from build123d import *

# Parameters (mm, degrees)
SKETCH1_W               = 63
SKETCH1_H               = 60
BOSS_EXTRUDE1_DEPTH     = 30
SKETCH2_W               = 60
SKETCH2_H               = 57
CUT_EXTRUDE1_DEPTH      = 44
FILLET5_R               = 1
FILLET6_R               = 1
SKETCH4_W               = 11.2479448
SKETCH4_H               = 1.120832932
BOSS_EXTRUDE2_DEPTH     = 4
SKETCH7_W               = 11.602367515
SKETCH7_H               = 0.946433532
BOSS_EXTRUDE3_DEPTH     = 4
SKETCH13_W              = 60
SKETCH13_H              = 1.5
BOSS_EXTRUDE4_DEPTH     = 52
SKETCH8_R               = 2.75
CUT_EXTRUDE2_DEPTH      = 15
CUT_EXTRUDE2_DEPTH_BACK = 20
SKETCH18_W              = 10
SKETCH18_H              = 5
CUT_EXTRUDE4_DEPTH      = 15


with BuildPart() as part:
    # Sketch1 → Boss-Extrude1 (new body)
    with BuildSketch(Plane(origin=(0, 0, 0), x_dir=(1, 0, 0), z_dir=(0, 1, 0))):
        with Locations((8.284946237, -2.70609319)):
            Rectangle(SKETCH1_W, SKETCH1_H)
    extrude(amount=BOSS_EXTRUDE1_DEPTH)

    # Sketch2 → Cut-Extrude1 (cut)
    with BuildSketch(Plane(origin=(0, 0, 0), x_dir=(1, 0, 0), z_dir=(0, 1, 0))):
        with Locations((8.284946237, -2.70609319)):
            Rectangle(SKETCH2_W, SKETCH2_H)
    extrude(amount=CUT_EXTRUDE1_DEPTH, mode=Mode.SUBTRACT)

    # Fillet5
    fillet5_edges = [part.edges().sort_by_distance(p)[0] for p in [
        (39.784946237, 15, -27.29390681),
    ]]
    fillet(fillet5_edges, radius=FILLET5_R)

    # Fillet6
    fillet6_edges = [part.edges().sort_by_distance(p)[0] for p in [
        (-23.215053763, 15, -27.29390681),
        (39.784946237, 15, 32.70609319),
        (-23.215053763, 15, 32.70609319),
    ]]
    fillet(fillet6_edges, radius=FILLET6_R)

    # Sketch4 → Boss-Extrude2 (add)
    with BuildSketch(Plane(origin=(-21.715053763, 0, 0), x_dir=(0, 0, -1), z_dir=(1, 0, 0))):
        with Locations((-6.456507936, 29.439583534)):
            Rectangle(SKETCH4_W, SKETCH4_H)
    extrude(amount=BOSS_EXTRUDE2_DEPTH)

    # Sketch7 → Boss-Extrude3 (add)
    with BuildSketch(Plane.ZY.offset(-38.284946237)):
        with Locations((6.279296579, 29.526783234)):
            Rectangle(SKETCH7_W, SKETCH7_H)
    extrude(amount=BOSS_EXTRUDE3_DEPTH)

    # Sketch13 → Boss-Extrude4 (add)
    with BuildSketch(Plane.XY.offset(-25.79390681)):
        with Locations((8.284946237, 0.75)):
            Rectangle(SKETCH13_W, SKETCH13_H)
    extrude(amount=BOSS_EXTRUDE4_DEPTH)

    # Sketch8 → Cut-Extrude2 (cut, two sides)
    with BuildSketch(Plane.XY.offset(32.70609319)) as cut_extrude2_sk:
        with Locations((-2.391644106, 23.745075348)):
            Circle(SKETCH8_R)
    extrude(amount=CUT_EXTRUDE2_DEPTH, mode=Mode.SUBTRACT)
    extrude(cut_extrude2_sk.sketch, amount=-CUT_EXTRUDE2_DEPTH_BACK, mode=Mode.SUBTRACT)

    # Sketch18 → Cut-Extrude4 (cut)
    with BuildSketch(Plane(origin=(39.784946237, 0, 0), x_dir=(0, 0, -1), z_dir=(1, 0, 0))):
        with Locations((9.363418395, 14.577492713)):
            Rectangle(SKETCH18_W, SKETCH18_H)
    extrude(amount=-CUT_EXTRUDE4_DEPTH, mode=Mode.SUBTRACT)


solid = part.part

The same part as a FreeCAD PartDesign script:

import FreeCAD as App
import Part
import Sketcher
from FreeCAD import Vector
Q = App.Units.Quantity


def edges_at(feature, points):
    """Names of the edges that pass closest to the given points."""
    edges = feature.Shape.Edges
    near = lambda p: min(range(len(edges)), key=lambda i: edges[i].distToShape(Part.Vertex(*p))[0])
    return sorted({f"Edge{near(p) + 1}" for p in points})

doc = App.newDocument("Part")
body = doc.addObject("PartDesign::Body", "Body")

# Sketch on XZ plane
sketch1 = body.newObject("Sketcher::SketchObject", "Sketch")
sketch1.AttachmentSupport = (doc.getObject("XZ_Plane"), [""])
sketch1.MapMode = "FlatFace"
sketch1.addGeometry(Part.LineSegment(Vector(-23, -27, 0), Vector(-23, 33, 0)), False)
sketch1.addGeometry(Part.LineSegment(Vector(-23, 33, 0), Vector(40, 33, 0)), False)
sketch1.addGeometry(Part.LineSegment(Vector(40, 33, 0), Vector(40, -27, 0)), False)
sketch1.addGeometry(Part.LineSegment(Vector(40, -27, 0), Vector(-23, -27, 0)), False)
sketch1.addConstraint(Sketcher.Constraint("Coincident", 0, 2, 1, 1))
sketch1.addConstraint(Sketcher.Constraint("Coincident", 1, 2, 2, 1))
sketch1.addConstraint(Sketcher.Constraint("Coincident", 2, 2, 3, 1))
sketch1.addConstraint(Sketcher.Constraint("Coincident", 3, 2, 0, 1))
sketch1.addConstraint(Sketcher.Constraint("Vertical", 0))
sketch1.addConstraint(Sketcher.Constraint("Horizontal", 1))
sketch1.addConstraint(Sketcher.Constraint("Vertical", 2))
sketch1.addConstraint(Sketcher.Constraint("Horizontal", 3))
sketch1.addConstraint(Sketcher.Constraint("DistanceX", 1, 1, 1, 2, Q("63 mm")))
sketch1.addConstraint(Sketcher.Constraint("DistanceY", 0, 1, 0, 2, Q("60 mm")))
sketch1.addConstraint(Sketcher.Constraint("DistanceX", 0, 2, -1, 1, Q("23.215054 mm")))
sketch1.addConstraint(Sketcher.Constraint("DistanceY", -1, 1, 0, 2, Q("32.706093 mm")))
pad1 = body.newObject("PartDesign::Pad", "Pad")
pad1.Profile = sketch1
pad1.Length = 30
pad1.Reversed = True

# Sketch on XZ plane
sketch2 = body.newObject("Sketcher::SketchObject", "Sketch001")
sketch2.AttachmentSupport = (doc.getObject("XZ_Plane"), [""])
sketch2.MapMode = "FlatFace"
sketch2.addGeometry(Part.LineSegment(Vector(-22, -26, 0), Vector(-22, 31, 0)), False)
sketch2.addGeometry(Part.LineSegment(Vector(-22, 31, 0), Vector(38, 31, 0)), False)
sketch2.addGeometry(Part.LineSegment(Vector(38, 31, 0), Vector(38, -26, 0)), False)
sketch2.addGeometry(Part.LineSegment(Vector(38, -26, 0), Vector(-22, -26, 0)), False)
sketch2.addConstraint(Sketcher.Constraint("Coincident", 0, 2, 1, 1))
sketch2.addConstraint(Sketcher.Constraint("Coincident", 1, 2, 2, 1))
sketch2.addConstraint(Sketcher.Constraint("Coincident", 2, 2, 3, 1))
sketch2.addConstraint(Sketcher.Constraint("Coincident", 3, 2, 0, 1))
sketch2.addConstraint(Sketcher.Constraint("Vertical", 0))
sketch2.addConstraint(Sketcher.Constraint("Horizontal", 1))
sketch2.addConstraint(Sketcher.Constraint("Vertical", 2))
sketch2.addConstraint(Sketcher.Constraint("Horizontal", 3))
sketch2.addConstraint(Sketcher.Constraint("DistanceX", 1, 1, 1, 2, Q("60 mm")))
sketch2.addConstraint(Sketcher.Constraint("DistanceY", 0, 1, 0, 2, Q("57 mm")))
sketch2.addConstraint(Sketcher.Constraint("DistanceX", 0, 2, -1, 1, Q("21.715054 mm")))
sketch2.addConstraint(Sketcher.Constraint("DistanceY", -1, 1, 0, 2, Q("31.206093 mm")))
pocket1 = body.newObject("PartDesign::Pocket", "Pocket")
pocket1.Profile = sketch2
pocket1.Length = 44
doc.recompute()

fillet = body.newObject("PartDesign::Fillet", "Fillet")
fillet.Base = (pocket1, edges_at(pocket1, [(39.785, 15, -27.294)]))
fillet.Radius = 1
doc.recompute()

fillet2 = body.newObject("PartDesign::Fillet", "Fillet001")
fillet2.Base = (fillet, edges_at(fillet, [(-23.215, 15, -27.294), (39.785, 15, 32.706), (-23.215, 15, 32.706)]))
fillet2.Radius = 1

# Sketch on YZ plane
sketch3 = body.newObject("Sketcher::SketchObject", "Sketch002")
sketch3.AttachmentSupport = (doc.getObject("YZ_Plane"), [""])
sketch3.MapMode = "FlatFace"
sketch3.AttachmentOffset = App.Placement(Vector(0, 0, -21.715054), App.Rotation())
sketch3.addGeometry(Part.LineSegment(Vector(30, 12.1, 0), Vector(28.9, 12.1, 0)), False)
sketch3.addGeometry(Part.LineSegment(Vector(28.9, 12.1, 0), Vector(28.9, 0.8, 0)), False)
sketch3.addGeometry(Part.LineSegment(Vector(28.9, 0.8, 0), Vector(30, 0.8, 0)), False)
sketch3.addGeometry(Part.LineSegment(Vector(30, 0.8, 0), Vector(30, 12.1, 0)), False)
sketch3.addConstraint(Sketcher.Constraint("Coincident", 0, 2, 1, 1))
sketch3.addConstraint(Sketcher.Constraint("Coincident", 1, 2, 2, 1))
sketch3.addConstraint(Sketcher.Constraint("Coincident", 2, 2, 3, 1))
sketch3.addConstraint(Sketcher.Constraint("Coincident", 3, 2, 0, 1))
sketch3.addConstraint(Sketcher.Constraint("Horizontal", 0))
sketch3.addConstraint(Sketcher.Constraint("Vertical", 1))
sketch3.addConstraint(Sketcher.Constraint("Horizontal", 2))
sketch3.addConstraint(Sketcher.Constraint("Vertical", 3))
sketch3.addConstraint(Sketcher.Constraint("DistanceX", -1, 1, 2, 2, Q("30 mm")))
sketch3.addConstraint(Sketcher.Constraint("DistanceX", 0, 2, 0, 1, Q("1.120833 mm")))
sketch3.addConstraint(Sketcher.Constraint("DistanceY", 1, 2, 1, 1, Q("11.247945 mm")))
sketch3.addConstraint(Sketcher.Constraint("DistanceY", -1, 1, 0, 2, Q("12.08048 mm")))
pad2 = body.newObject("PartDesign::Pad", "Pad001")
pad2.Profile = sketch3
pad2.Length = 4

# Sketch on YZ plane
sketch4 = body.newObject("Sketcher::SketchObject", "Sketch003")
sketch4.AttachmentSupport = (doc.getObject("YZ_Plane"), [""])
sketch4.MapMode = "FlatFace"
sketch4.AttachmentOffset = App.Placement(Vector(0, 0, 38.284946), App.Rotation())
sketch4.addGeometry(Part.LineSegment(Vector(30, 0.5, 0), Vector(29.1, 0.5, 0)), False)
sketch4.addGeometry(Part.LineSegment(Vector(29.1, 0.5, 0), Vector(29.1, 12.1, 0)), False)
sketch4.addGeometry(Part.LineSegment(Vector(29.1, 12.1, 0), Vector(30, 12.1, 0)), False)
sketch4.addGeometry(Part.LineSegment(Vector(30, 12.1, 0), Vector(30, 0.5, 0)), False)
sketch4.addConstraint(Sketcher.Constraint("Coincident", 0, 2, 1, 1))
sketch4.addConstraint(Sketcher.Constraint("Coincident", 1, 2, 2, 1))
sketch4.addConstraint(Sketcher.Constraint("Coincident", 2, 2, 3, 1))
sketch4.addConstraint(Sketcher.Constraint("Coincident", 3, 2, 0, 1))
sketch4.addConstraint(Sketcher.Constraint("Horizontal", 0))
sketch4.addConstraint(Sketcher.Constraint("Vertical", 1))
sketch4.addConstraint(Sketcher.Constraint("Horizontal", 2))
sketch4.addConstraint(Sketcher.Constraint("Vertical", 3))
sketch4.addConstraint(Sketcher.Constraint("DistanceX", -1, 1, 2, 2, Q("30 mm")))
sketch4.addConstraint(Sketcher.Constraint("DistanceX", 0, 2, 0, 1, Q("0.946434 mm")))
sketch4.addConstraint(Sketcher.Constraint("DistanceY", 1, 1, 1, 2, Q("11.602368 mm")))
sketch4.addConstraint(Sketcher.Constraint("DistanceY", -1, 1, 1, 2, Q("12.08048 mm")))
pad3 = body.newObject("PartDesign::Pad", "Pad002")
pad3.Profile = sketch4
pad3.Length = 4
pad3.Reversed = True

# Sketch on XY plane
sketch5 = body.newObject("Sketcher::SketchObject", "Sketch004")
sketch5.AttachmentSupport = (doc.getObject("XY_Plane"), [""])
sketch5.MapMode = "FlatFace"
sketch5.AttachmentOffset = App.Placement(Vector(0, 0, -25.793907), App.Rotation())
sketch5.addGeometry(Part.LineSegment(Vector(-21.7, 1.5, 0), Vector(-21.7, 0, 0)), False)
sketch5.addGeometry(Part.LineSegment(Vector(-21.7, 0, 0), Vector(38.3, 0, 0)), False)
sketch5.addGeometry(Part.LineSegment(Vector(38.3, 0, 0), Vector(38.3, 1.5, 0)), False)
sketch5.addGeometry(Part.LineSegment(Vector(38.3, 1.5, 0), Vector(-21.7, 1.5, 0)), False)
sketch5.addConstraint(Sketcher.Constraint("Coincident", 0, 2, 1, 1))
sketch5.addConstraint(Sketcher.Constraint("Coincident", 1, 2, 2, 1))
sketch5.addConstraint(Sketcher.Constraint("Coincident", 2, 2, 3, 1))
sketch5.addConstraint(Sketcher.Constraint("Coincident", 3, 2, 0, 1))
sketch5.addConstraint(Sketcher.Constraint("Vertical", 0))
sketch5.addConstraint(Sketcher.Constraint("Horizontal", 1))
sketch5.addConstraint(Sketcher.Constraint("Vertical", 2))
sketch5.addConstraint(Sketcher.Constraint("Horizontal", 3))
sketch5.addConstraint(Sketcher.Constraint("PointOnObject", 0, 2, -1))
sketch5.addConstraint(Sketcher.Constraint("DistanceX", 1, 1, 1, 2, Q("60 mm")))
sketch5.addConstraint(Sketcher.Constraint("DistanceY", 0, 2, 0, 1, Q("1.5 mm")))
sketch5.addConstraint(Sketcher.Constraint("DistanceX", 0, 2, -1, 1, Q("21.715054 mm")))
pad4 = body.newObject("PartDesign::Pad", "Pad003")
pad4.Profile = sketch5
pad4.Length = 52

# Sketch on XY plane
sketch6 = body.newObject("Sketcher::SketchObject", "Sketch005")
sketch6.AttachmentSupport = (doc.getObject("XY_Plane"), [""])
sketch6.MapMode = "FlatFace"
sketch6.AttachmentOffset = App.Placement(Vector(0, 0, 32.706093), App.Rotation())
sketch6.addGeometry(Part.Circle(Vector(-2.4, 23.7, 0), Vector(0, 0, 1), 2.8), False)
sketch6.addConstraint(Sketcher.Constraint("Diameter", 0, Q("5.5 mm")))
sketch6.addConstraint(Sketcher.Constraint("DistanceX", 0, 3, -1, 1, Q("2.391644 mm")))
sketch6.addConstraint(Sketcher.Constraint("DistanceY", -1, 1, 0, 3, Q("23.745075 mm")))
pocket2 = body.newObject("PartDesign::Pocket", "Pocket001")
pocket2.Profile = sketch6
pocket2.Type = "TwoLengths"
pocket2.Length = 15
pocket2.Length2 = 20
pocket2.Reversed = True

# Sketch on YZ plane
sketch7 = body.newObject("Sketcher::SketchObject", "Sketch006")
sketch7.AttachmentSupport = (doc.getObject("YZ_Plane"), [""])
sketch7.MapMode = "FlatFace"
sketch7.AttachmentOffset = App.Placement(Vector(0, 0, 39.784946), App.Rotation())
sketch7.addGeometry(Part.LineSegment(Vector(17, -4, 0), Vector(12, -4, 0)), False)
sketch7.addGeometry(Part.LineSegment(Vector(12, -4, 0), Vector(12, -14, 0)), False)
sketch7.addGeometry(Part.LineSegment(Vector(12, -14, 0), Vector(17, -14, 0)), False)
sketch7.addGeometry(Part.LineSegment(Vector(17, -14, 0), Vector(17, -4, 0)), False)
sketch7.addConstraint(Sketcher.Constraint("Coincident", 0, 2, 1, 1))
sketch7.addConstraint(Sketcher.Constraint("Coincident", 1, 2, 2, 1))
sketch7.addConstraint(Sketcher.Constraint("Coincident", 2, 2, 3, 1))
sketch7.addConstraint(Sketcher.Constraint("Coincident", 3, 2, 0, 1))
sketch7.addConstraint(Sketcher.Constraint("Horizontal", 0))
sketch7.addConstraint(Sketcher.Constraint("Vertical", 1))
sketch7.addConstraint(Sketcher.Constraint("Horizontal", 2))
sketch7.addConstraint(Sketcher.Constraint("Vertical", 3))
sketch7.addConstraint(Sketcher.Constraint("DistanceX", 0, 2, 0, 1, Q("5 mm")))
sketch7.addConstraint(Sketcher.Constraint("DistanceY", 1, 2, 1, 1, Q("10 mm")))
sketch7.addConstraint(Sketcher.Constraint("DistanceY", 0, 2, -1, 1, Q("4.363418 mm")))
sketch7.addConstraint(Sketcher.Constraint("DistanceX", -1, 1, 0, 2, Q("12.077493 mm")))
pocket3 = body.newObject("PartDesign::Pocket", "Pocket002")
pocket3.Profile = sketch7
pocket3.Length = 15

doc.recompute()
